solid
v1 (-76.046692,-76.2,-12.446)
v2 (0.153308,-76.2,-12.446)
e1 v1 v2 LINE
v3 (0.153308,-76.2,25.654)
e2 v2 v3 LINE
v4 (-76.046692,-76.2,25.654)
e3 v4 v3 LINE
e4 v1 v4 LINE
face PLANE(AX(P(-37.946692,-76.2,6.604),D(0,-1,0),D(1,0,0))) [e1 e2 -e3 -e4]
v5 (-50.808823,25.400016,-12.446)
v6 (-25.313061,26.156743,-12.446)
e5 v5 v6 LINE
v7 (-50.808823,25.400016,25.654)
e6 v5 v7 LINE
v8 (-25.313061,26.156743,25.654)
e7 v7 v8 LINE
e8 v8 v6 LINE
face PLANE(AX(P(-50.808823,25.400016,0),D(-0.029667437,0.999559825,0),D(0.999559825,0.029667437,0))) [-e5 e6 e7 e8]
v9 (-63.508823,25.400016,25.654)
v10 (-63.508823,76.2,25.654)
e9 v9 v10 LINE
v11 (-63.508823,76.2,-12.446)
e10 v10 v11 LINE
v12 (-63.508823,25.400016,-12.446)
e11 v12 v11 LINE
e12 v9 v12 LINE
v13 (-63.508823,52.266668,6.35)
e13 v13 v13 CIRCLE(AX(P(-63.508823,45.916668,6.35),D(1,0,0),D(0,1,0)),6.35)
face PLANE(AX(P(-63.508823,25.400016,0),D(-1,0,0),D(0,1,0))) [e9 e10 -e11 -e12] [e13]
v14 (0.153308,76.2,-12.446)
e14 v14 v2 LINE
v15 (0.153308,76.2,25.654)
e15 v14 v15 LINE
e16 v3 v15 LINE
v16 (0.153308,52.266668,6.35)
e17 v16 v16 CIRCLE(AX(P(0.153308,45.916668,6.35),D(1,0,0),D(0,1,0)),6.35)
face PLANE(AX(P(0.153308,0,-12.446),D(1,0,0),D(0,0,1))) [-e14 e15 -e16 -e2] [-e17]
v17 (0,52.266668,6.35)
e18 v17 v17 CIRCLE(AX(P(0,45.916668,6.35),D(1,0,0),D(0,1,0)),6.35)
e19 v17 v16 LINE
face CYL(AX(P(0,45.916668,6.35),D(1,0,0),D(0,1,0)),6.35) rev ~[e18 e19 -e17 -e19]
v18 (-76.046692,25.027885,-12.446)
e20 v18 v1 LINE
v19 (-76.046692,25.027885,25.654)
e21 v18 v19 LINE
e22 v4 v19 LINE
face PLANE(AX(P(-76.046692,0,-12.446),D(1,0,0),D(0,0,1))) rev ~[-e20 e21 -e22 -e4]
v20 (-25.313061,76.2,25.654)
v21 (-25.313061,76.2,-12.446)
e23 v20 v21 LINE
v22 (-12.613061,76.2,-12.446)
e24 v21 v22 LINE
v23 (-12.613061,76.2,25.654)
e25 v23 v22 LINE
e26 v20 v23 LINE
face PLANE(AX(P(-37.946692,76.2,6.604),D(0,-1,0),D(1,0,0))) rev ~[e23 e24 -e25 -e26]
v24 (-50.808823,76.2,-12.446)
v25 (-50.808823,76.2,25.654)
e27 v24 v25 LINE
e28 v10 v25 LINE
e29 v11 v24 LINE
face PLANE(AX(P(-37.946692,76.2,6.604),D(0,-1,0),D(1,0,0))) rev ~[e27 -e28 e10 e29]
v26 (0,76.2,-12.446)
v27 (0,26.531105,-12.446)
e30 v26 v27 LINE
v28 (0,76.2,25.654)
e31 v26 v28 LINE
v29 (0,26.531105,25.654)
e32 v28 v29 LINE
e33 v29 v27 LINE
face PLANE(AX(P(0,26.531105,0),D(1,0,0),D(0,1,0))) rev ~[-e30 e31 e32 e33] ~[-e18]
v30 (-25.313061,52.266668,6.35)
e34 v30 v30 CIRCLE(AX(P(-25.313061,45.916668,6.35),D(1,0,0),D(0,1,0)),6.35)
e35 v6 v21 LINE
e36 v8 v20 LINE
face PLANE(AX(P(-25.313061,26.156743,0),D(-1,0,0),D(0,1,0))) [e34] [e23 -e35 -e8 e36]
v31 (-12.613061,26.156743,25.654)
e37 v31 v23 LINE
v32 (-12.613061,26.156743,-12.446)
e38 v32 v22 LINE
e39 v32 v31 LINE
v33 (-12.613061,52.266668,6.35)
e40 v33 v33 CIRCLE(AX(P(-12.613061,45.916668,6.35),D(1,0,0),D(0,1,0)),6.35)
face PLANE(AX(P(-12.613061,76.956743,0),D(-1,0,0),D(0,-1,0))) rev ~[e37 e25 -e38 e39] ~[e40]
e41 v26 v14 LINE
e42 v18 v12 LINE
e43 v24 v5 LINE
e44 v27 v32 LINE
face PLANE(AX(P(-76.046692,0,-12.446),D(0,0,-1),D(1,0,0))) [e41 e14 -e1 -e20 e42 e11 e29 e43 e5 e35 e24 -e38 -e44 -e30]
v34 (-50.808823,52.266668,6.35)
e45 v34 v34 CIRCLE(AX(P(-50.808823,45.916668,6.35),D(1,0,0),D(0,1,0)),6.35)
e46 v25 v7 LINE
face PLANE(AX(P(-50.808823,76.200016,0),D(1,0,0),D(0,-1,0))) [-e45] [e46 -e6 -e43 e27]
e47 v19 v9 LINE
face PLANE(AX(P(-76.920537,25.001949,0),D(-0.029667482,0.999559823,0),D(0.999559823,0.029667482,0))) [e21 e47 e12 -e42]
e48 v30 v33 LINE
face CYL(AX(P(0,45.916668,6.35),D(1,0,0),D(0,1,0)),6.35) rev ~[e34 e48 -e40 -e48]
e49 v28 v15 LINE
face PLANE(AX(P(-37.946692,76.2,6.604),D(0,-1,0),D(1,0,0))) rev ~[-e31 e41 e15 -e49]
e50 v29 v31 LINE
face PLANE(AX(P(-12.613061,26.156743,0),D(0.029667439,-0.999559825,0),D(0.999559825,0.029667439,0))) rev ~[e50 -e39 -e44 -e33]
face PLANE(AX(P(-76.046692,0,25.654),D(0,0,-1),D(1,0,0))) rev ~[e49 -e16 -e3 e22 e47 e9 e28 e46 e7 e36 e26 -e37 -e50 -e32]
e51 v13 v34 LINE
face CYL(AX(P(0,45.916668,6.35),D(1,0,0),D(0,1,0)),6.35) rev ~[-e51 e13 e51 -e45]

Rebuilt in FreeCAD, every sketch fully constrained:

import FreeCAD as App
import Part
import Sketcher
from FreeCAD import Vector
Q = App.Units.Quantity


def add_polygon(sketch, points):
    """Adds a closed chain of lines whose ends are joined by coincident constraints."""
    first, n = sketch.GeometryCount, len(points)
    for a, b in zip(points, points[1:] + points[:1]):
        sketch.addGeometry(Part.LineSegment(App.Vector(*a, 0), App.Vector(*b, 0)), False)
    for i in range(n):
        sketch.addConstraint(Sketcher.Constraint("Coincident", first + i, 2, first + (i + 1) % n, 1))

doc = App.newDocument("Part")
body = doc.addObject("PartDesign::Body", "Body")

# Sketch on XZ plane
sketch1 = doc.addObject("Sketcher::SketchObject", "Sketch")
body.addObject(sketch1)
sketch1.AttachmentSupport = (doc.XZ_Plane, [""])
sketch1.MapMode = "FlatFace"
add_polygon(sketch1, [(-218, 38), (-218, 0), (-142, 0), (-142, 38)])  # lines 0-3
sketch1.addConstraint(Sketcher.Constraint("Vertical", 0))
sketch1.addConstraint(Sketcher.Constraint("Horizontal", 1))
sketch1.addConstraint(Sketcher.Constraint("Vertical", 2))
sketch1.addConstraint(Sketcher.Constraint("Horizontal", 3))
sketch1.addConstraint(Sketcher.Constraint("PointOnObject", 0, 2, -1))
sketch1.addConstraint(Sketcher.Constraint("DistanceX", 1, 1, 1, 2, Q("3 in")))
sketch1.addConstraint(Sketcher.Constraint("DistanceY", 0, 2, 0, 1, Q("1.5 in")))
sketch1.addConstraint(Sketcher.Constraint("DistanceX", 0, 2, -1, 1, 217.778692))
pad1 = doc.addObject("PartDesign::Pad", "Pad")
body.addObject(pad1)
pad1.Profile = sketch1
pad1.Length = Q("6 in")
pad1.Midplane = True
body2 = doc.addObject("PartDesign::Body", "Body001")
doc.recompute()

body.Placement = App.Placement(Vector(141.732, 0, -12.446), App.Rotation(Vector(0, 0, 1), 0))
boolean = doc.addObject("PartDesign::Boolean", "Boolean")
body2.addObject(boolean)
boolean.Type = "Fuse"
boolean.addObjects([body])

# Sketch on YZ plane
sketch2 = doc.addObject("Sketcher::SketchObject", "Sketch001")
body2.addObject(sketch2)
sketch2.AttachmentSupport = (doc.getObject("YZ_Plane001"), [""])
sketch2.MapMode = "FlatFace"
sketch2.addGeometry(Part.Circle(Vector(46, 6, 0), Vector(0, 0, 1), 6), False)
sketch2.addConstraint(Sketcher.Constraint("Diameter", 0, Q("0.5 in")))
sketch2.addConstraint(Sketcher.Constraint("DistanceY", -1, 1, 0, 3, Q("0.25 in")))
sketch2.addConstraint(Sketcher.Constraint("DistanceX", -1, 1, 0, 3, 45.916668))
pocket1 = doc.addObject("PartDesign::Pocket", "Pocket")
body2.addObject(pocket1)
pocket1.Profile = sketch2
pocket1.Length = Q("6.72 in")
pocket1.Midplane = True

# Sketch on XY plane
sketch3 = doc.addObject("Sketcher::SketchObject", "Sketch002")
body2.addObject(sketch3)
sketch3.AttachmentSupport = (doc.getObject("XY_Plane001"), [""])
sketch3.MapMode = "FlatFace"
add_polygon(sketch3, [(-64, 25), (-64, 76), (-77, 77), (-77, 25)])  # lines 0-3
add_polygon(sketch3, [(-25, 77), (-51, 76), (-51, 25), (-25, 26)])  # lines 4-7
add_polygon(sketch3, [(0, 76), (-13, 77), (-13, 26), (0, 27)])  # lines 8-11
sketch3.addConstraint(Sketcher.Constraint("Vertical", 0))
sketch3.addConstraint(Sketcher.Constraint("Vertical", 2))
sketch3.addConstraint(Sketcher.Constraint("Vertical", 5))
sketch3.addConstraint(Sketcher.Constraint("Vertical", 7))
sketch3.addConstraint(Sketcher.Constraint("Vertical", 9))
sketch3.addConstraint(Sketcher.Constraint("Vertical", 11))
sketch3.addConstraint(Sketcher.Constraint("PointOnObject", 10, 2, -2))
sketch3.addConstraint(Sketcher.Constraint("Parallel", 3, 4))
sketch3.addConstraint(Sketcher.Constraint("Parallel", 4, 6))
sketch3.addConstraint(Sketcher.Constraint("Parallel", 6, 10))
sketch3.addConstraint(Sketcher.Constraint("Horizontal", 0, 2, 4, 2))
sketch3.addConstraint(Sketcher.Constraint("Horizontal", 3, 2, 5, 2))
sketch3.addConstraint(Sketcher.Constraint("Horizontal", 1, 2, 7, 2))
sketch3.addConstraint(Sketcher.Constraint("Horizontal", 7, 2, 8, 2))
sketch3.addConstraint(Sketcher.Constraint("Horizontal", 6, 2, 9, 2))
sketch3.addConstraint(Sketcher.Constraint("Horizontal", 4, 2, 11, 2))
sketch3.addConstraint(Sketcher.Constraint("DistanceY", 0, 1, 0, 2, Q("2 in")))
sketch3.addConstraint(Sketcher.Constraint("DistanceX", 0, 2, 4, 2, Q("0.5 in")))
sketch3.addConstraint(Sketcher.Constraint("DistanceX", 7, 2, 8, 2, Q("0.5 in")))
sketch3.addConstraint(Sketcher.Constraint("DistanceY", 11, 1, 11, 2, 49.668911))
sketch3.addConstraint(Sketcher.Constraint("Distance", 3, 13.41762))
sketch3.addConstraint(Sketcher.Constraint("Distance", 4, 25.50699))
sketch3.addConstraint(Sketcher.Constraint("Distance", 8, 12.635741))
sketch3.addConstraint(Sketcher.Constraint("DistanceY", -1, 1, 2, 2, 25.001949))
pocket2 = doc.addObject("PartDesign::Pocket", "Pocket001")
body2.addObject(pocket2)
pocket2.Profile = sketch3
pocket2.Length = Q("4 in")
pocket2.Midplane = True

doc.recompute()
